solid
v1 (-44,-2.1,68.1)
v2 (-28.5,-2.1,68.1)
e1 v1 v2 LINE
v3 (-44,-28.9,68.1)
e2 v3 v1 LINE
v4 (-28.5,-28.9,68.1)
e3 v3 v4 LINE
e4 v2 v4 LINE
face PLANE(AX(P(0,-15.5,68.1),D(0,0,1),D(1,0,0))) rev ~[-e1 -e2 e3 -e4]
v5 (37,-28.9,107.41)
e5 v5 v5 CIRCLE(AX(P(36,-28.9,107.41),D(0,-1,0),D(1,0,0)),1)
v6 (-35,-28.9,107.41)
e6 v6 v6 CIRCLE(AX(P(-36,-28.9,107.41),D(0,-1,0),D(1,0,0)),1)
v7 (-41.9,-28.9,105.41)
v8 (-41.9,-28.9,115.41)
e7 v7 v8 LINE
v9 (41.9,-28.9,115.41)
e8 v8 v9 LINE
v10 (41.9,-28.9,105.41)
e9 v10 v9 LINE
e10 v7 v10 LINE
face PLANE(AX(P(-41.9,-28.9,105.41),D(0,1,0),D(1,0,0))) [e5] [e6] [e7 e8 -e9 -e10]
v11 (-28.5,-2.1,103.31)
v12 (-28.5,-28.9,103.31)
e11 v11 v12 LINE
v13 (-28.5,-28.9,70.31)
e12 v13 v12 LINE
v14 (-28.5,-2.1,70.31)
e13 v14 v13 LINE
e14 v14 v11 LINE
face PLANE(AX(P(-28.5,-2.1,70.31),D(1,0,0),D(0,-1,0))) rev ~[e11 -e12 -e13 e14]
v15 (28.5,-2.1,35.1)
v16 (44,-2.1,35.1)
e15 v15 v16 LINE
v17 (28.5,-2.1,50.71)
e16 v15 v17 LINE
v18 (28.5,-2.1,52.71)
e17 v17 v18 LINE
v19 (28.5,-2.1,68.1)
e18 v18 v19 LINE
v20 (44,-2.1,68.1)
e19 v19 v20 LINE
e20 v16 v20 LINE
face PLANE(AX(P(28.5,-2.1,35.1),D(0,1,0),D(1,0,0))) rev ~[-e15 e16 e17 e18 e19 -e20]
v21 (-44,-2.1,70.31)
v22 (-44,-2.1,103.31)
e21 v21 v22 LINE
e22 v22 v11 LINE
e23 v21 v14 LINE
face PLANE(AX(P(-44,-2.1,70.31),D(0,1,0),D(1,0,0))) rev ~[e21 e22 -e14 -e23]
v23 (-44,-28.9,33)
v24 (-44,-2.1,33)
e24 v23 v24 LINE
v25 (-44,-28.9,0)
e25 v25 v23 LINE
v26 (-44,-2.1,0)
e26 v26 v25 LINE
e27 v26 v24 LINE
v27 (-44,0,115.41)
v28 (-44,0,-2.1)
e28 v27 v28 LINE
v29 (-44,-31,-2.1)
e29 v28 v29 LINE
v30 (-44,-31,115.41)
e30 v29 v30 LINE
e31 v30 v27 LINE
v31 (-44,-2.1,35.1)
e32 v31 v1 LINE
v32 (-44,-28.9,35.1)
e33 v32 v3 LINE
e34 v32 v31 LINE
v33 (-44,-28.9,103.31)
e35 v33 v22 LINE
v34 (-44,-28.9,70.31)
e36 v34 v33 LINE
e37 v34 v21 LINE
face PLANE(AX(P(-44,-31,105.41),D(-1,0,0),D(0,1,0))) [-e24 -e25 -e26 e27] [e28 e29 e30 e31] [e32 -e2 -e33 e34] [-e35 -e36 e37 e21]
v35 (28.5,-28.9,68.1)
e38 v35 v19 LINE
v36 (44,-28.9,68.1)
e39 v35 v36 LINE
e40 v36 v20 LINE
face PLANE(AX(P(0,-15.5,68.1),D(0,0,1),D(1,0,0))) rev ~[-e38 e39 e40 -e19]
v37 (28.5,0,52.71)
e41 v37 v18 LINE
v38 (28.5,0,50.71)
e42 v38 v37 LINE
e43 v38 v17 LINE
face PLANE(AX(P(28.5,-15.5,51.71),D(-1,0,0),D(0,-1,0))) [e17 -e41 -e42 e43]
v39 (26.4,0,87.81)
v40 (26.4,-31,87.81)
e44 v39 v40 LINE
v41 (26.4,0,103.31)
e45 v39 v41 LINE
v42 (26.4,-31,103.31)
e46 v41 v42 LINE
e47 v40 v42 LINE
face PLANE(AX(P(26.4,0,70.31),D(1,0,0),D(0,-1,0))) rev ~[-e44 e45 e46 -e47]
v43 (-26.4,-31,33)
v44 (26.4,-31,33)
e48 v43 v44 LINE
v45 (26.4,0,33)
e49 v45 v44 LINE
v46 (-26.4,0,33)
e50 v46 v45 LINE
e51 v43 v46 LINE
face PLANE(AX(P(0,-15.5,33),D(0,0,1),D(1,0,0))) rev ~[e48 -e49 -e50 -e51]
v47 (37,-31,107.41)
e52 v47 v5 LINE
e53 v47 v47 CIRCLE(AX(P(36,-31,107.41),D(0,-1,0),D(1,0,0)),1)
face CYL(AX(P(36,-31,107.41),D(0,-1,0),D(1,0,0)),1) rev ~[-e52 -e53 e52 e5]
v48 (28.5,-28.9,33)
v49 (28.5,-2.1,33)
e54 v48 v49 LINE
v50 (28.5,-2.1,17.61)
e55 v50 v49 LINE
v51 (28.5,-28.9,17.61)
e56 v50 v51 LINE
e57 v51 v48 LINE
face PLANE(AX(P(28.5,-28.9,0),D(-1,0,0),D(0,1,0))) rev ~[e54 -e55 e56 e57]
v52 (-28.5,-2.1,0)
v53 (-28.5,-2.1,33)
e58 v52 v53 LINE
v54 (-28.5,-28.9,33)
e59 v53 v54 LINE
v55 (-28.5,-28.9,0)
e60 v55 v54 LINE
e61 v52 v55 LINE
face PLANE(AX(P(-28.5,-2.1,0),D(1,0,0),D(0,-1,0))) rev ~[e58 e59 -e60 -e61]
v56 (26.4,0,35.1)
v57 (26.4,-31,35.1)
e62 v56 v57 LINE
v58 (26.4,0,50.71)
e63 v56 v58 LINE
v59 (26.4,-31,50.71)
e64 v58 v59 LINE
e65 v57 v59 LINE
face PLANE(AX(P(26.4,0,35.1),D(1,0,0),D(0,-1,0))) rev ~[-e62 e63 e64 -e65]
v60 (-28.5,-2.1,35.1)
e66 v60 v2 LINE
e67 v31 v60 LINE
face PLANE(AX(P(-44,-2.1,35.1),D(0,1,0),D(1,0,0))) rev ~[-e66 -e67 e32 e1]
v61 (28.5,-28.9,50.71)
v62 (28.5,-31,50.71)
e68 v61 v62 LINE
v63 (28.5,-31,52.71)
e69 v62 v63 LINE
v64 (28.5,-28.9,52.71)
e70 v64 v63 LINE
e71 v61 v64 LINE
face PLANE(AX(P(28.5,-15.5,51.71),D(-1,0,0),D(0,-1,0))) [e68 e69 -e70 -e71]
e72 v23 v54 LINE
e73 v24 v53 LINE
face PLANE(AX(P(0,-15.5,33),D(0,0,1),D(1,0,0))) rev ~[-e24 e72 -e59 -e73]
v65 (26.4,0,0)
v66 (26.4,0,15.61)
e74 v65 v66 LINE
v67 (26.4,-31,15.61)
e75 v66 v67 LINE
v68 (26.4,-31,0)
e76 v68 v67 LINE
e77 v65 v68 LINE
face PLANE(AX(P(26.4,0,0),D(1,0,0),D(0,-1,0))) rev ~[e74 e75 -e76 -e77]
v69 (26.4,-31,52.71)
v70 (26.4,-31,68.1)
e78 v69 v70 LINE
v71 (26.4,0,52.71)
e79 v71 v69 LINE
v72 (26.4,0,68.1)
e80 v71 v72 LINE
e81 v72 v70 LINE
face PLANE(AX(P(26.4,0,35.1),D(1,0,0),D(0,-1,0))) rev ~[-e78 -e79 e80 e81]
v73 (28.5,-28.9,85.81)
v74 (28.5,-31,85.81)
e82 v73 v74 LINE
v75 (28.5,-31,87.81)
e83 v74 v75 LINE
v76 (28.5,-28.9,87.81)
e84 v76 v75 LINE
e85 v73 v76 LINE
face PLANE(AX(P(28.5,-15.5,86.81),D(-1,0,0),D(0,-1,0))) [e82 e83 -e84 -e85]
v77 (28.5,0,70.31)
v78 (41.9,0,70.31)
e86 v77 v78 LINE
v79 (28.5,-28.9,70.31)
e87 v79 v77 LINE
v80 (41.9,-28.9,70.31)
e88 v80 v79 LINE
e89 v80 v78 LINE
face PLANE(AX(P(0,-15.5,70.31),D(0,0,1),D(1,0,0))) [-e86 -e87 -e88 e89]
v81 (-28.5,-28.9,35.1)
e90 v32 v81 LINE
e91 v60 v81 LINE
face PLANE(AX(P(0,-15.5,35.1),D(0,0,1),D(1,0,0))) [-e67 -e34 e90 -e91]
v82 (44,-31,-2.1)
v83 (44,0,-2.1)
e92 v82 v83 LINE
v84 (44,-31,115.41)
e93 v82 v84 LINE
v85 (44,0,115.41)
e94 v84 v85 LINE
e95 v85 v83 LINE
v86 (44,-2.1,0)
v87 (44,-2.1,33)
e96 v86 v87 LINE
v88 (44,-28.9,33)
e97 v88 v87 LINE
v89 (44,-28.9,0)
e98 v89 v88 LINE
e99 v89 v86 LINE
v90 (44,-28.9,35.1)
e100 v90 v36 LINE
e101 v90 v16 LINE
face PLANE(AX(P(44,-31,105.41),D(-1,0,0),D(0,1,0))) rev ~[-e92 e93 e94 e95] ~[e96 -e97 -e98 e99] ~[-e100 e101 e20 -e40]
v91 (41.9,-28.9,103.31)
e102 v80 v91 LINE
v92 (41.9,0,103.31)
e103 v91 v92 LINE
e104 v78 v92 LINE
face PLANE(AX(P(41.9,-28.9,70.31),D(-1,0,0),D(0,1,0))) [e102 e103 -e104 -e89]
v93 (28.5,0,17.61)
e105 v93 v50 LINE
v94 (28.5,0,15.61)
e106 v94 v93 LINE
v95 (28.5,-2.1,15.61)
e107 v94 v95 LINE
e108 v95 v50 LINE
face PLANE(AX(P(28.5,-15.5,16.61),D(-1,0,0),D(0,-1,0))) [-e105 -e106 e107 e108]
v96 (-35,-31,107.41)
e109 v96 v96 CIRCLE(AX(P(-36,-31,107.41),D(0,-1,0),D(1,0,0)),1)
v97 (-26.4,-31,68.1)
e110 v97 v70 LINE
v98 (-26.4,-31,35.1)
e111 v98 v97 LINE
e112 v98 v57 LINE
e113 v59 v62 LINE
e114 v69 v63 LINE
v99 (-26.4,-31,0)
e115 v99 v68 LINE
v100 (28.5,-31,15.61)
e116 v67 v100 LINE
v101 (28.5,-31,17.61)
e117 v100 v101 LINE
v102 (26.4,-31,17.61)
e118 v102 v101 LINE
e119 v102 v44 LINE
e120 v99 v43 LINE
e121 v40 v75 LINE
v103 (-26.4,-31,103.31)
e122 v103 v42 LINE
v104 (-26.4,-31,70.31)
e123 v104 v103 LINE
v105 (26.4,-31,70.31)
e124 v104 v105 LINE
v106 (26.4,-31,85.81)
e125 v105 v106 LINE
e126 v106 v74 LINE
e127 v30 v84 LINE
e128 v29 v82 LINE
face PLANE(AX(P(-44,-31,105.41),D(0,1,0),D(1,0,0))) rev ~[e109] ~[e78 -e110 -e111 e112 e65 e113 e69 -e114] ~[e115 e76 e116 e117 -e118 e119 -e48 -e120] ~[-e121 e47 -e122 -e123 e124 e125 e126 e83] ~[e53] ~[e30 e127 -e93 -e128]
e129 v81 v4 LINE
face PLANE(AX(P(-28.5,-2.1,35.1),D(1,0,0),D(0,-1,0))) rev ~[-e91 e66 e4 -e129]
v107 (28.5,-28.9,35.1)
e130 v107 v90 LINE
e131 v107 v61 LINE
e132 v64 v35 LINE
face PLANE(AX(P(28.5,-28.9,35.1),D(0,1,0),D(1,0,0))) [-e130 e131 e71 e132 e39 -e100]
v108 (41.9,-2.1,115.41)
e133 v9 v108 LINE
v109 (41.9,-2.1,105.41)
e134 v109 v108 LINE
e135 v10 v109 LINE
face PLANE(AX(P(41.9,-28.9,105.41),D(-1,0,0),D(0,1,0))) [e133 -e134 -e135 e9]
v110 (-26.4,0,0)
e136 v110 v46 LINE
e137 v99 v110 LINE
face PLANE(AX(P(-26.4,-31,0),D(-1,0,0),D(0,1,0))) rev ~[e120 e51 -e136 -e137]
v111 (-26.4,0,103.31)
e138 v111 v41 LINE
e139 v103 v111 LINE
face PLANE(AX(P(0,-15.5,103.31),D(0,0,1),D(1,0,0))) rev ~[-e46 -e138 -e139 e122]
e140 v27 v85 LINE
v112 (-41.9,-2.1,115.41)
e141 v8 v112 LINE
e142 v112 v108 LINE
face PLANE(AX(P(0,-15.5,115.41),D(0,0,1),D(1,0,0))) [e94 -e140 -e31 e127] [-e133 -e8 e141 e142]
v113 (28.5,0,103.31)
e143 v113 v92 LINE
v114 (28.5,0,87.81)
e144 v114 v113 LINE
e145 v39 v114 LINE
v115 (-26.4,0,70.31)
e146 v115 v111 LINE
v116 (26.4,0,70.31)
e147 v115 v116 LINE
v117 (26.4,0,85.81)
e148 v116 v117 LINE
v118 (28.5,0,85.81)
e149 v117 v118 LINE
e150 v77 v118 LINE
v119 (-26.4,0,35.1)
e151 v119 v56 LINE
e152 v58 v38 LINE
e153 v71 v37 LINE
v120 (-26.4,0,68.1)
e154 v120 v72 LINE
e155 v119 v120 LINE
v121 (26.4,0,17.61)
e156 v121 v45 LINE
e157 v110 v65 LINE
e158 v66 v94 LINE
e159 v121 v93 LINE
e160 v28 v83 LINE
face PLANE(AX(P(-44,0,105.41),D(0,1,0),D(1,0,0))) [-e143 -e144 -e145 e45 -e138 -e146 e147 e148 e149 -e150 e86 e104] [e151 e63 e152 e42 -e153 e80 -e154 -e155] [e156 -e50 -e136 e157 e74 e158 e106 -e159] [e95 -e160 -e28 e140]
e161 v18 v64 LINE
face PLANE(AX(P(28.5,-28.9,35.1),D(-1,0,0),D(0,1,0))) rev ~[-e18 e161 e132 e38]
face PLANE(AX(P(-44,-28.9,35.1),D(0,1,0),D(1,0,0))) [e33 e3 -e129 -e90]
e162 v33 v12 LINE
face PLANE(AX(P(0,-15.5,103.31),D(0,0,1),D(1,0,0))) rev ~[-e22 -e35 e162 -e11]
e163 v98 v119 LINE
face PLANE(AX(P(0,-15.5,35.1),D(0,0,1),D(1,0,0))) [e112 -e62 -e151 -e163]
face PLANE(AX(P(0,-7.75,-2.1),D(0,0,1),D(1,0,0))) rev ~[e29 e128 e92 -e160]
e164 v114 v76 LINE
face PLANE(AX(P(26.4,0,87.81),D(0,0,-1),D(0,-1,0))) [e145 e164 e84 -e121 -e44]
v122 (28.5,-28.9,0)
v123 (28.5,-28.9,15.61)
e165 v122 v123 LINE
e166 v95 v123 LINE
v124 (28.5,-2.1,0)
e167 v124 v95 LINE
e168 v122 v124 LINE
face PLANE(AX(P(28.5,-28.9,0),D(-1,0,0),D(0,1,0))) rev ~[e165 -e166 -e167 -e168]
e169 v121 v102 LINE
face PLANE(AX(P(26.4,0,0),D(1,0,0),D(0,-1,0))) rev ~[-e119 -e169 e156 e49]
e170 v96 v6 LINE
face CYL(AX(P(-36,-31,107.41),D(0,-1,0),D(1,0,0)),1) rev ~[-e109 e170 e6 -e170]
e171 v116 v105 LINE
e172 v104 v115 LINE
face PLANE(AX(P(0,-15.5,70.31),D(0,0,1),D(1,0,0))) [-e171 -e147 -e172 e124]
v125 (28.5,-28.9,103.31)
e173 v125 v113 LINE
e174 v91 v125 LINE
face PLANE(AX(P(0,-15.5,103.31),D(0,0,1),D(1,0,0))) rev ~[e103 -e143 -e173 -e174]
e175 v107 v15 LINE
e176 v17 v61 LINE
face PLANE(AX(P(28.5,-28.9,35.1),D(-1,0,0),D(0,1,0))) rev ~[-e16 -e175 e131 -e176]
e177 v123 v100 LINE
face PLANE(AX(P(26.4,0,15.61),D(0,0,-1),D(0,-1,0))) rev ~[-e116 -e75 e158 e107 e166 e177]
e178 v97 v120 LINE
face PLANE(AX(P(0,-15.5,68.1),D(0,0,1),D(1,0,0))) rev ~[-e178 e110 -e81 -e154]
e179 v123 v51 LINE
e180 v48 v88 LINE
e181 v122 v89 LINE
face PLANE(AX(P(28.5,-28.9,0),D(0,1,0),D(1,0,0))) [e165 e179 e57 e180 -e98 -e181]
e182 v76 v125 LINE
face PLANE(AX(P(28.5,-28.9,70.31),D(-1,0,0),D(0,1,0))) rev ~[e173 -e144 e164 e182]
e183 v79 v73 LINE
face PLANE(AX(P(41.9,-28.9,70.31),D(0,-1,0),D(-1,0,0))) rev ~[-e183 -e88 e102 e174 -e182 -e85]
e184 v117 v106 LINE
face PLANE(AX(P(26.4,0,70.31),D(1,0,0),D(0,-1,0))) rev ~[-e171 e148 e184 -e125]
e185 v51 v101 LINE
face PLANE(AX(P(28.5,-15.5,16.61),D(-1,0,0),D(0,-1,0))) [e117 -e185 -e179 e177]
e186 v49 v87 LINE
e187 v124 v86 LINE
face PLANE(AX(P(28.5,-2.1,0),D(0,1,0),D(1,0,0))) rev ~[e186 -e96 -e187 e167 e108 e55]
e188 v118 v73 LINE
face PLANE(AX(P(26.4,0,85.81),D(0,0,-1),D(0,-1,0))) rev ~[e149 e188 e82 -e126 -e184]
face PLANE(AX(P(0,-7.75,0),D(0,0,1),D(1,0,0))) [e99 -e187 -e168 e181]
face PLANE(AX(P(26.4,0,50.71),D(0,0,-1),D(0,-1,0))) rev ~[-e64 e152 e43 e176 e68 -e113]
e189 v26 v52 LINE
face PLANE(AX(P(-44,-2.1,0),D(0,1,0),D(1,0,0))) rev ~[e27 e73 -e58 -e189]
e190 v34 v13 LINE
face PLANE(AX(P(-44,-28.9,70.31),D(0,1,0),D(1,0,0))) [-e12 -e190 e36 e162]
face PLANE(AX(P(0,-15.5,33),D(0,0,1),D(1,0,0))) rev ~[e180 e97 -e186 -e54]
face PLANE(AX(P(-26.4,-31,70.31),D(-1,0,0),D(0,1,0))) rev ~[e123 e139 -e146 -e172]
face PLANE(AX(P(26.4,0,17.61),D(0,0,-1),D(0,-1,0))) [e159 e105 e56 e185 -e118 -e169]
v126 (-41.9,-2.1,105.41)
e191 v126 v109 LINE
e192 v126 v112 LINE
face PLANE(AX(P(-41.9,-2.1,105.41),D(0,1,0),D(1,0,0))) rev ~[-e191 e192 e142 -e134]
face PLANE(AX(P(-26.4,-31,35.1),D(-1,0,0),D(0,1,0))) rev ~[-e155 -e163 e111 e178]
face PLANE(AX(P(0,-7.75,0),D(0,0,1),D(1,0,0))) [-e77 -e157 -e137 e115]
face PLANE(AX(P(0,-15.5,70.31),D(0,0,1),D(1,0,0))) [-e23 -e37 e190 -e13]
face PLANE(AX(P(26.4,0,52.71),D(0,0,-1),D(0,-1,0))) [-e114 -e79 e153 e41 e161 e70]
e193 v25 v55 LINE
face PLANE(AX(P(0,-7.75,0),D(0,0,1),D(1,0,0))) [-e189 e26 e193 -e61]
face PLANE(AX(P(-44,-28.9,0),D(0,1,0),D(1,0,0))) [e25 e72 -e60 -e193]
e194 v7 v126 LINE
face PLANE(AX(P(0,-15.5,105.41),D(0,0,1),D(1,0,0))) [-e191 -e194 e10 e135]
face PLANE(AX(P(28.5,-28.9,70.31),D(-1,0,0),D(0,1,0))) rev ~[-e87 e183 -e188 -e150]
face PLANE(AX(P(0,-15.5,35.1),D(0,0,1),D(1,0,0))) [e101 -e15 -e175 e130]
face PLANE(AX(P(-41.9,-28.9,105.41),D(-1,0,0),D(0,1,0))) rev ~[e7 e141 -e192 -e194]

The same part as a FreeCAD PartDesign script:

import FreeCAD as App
import Part
import Sketcher

V = App.Vector
Q = App.Units.Quantity

doc = App.newDocument("Part")
params = doc.addObject("Spreadsheet::Sheet", "Params")
for row, (alias, value) in enumerate([
    ("sketch1_width", "88 mm"),
    ("sketch1_height", "31 mm"),
    ("pad1_length", "2.1 mm"),
    ("sketch2_height", "31 mm"),
    ("sketch2_width", "17.6 mm"),
    ("sketch2_width2", "15.5 mm"),
    ("sketch2_height2", "2.1 mm"),
    ("pad2_length", "33 mm"),
    ("sketch3_width", "88 mm"),
    ("sketch3_height", "31 mm"),
    ("pad3_length", "2.1 mm"),
    ("sketch4_height", "31 mm"),
    ("sketch4_width", "17.6 mm"),
    ("sketch4_width2", "15.5 mm"),
    ("sketch4_height2", "2.1 mm"),
    ("pad4_length", "33 mm"),
    ("sketch5_width", "88 mm"),
    ("sketch5_height", "31 mm"),
    ("pad5_length", "2.21 mm"),
    ("sketch6_height", "31 mm"),
    ("sketch6_width", "15.5 mm"),
    ("sketch6_width2", "17.6 mm"),
    ("pad6_length", "33 mm"),
    ("sketch7_width", "88 mm"),
    ("sketch7_height", "31 mm"),
    ("pad7_length", "2.1 mm"),
    ("sketch8_width", "88 mm"),
    ("sketch8_height", "31 mm"),
    ("sketch8_width2", "83.8 mm"),
    ("sketch8_height2", "26.8 mm"),
    ("pad8_length", "10 mm"),
    ("sketch9_diameter", "2 mm"),
    ("pocket1_length", "2.1 mm"),
    ("sketch10_width", "31 mm"),
    ("sketch10_height", "2 mm"),
    ("pocket2_length", "2.1 mm"),
], start=1):
    params.set(f"A{row}", alias)
    params.set(f"B{row}", "=" + value)
    params.setAlias(f"B{row}", alias)

body = doc.addObject("PartDesign::Body", "Body")

sketch1 = body.newObject("Sketcher::SketchObject", "Sketch")
sketch1.AttachmentSupport = (doc.getObject("XY_Plane"), [""])
sketch1.MapMode = "FlatFace"
sketch1.addGeometry([
    Part.LineSegment(V(-44, 0, 0), V(-44, -31, 0)),
    Part.LineSegment(V(-44, -31, 0), V(44, -31, 0)),
    Part.LineSegment(V(44, -31, 0), V(44, 0, 0)),
    Part.LineSegment(V(44, 0, 0), V(-44, 0, 0)),
], False)
sketch1.addConstraint([
    Sketcher.Constraint("Coincident", 0, 2, 1, 1),
    Sketcher.Constraint("Coincident", 1, 2, 2, 1),
    Sketcher.Constraint("Coincident", 2, 2, 3, 1),
    Sketcher.Constraint("Coincident", 3, 2, 0, 1),
    Sketcher.Constraint("Vertical", 0),
    Sketcher.Constraint("Horizontal", 1),
    Sketcher.Constraint("Vertical", 2),
    Sketcher.Constraint("Horizontal", 3),
    Sketcher.Constraint("Symmetric", 2, 2, 3, 2, -1, 1),
    Sketcher.Constraint("DistanceX", 1, 1, 1, 2, Q("88 mm")),
    Sketcher.Constraint("DistanceY", 0, 2, 0, 1, Q("31 mm")),
])
sketch1.setExpression("Constraints[9]", "Params.sketch1_width")
sketch1.setExpression("Constraints[10]", "Params.sketch1_height")
pad1 = body.newObject("PartDesign::Pad", "Pad")
pad1.Profile = sketch1
pad1.setExpression("Length", "Params.pad1_length")
pad1.Reversed = True

sketch2 = body.newObject("Sketcher::SketchObject", "Sketch001")
sketch2.AttachmentSupport = (doc.getObject("XY_Plane"), [""])
sketch2.MapMode = "FlatFace"
sketch2.addGeometry([
    Part.LineSegment(V(-26.4, 0, 0), V(-44, 0, 0)),
    Part.LineSegment(V(-44, 0, 0), V(-44, -2.1, 0)),
    Part.LineSegment(V(-44, -2.1, 0), V(-28.5, -2.1, 0)),
    Part.LineSegment(V(-28.5, -2.1, 0), V(-28.5, -28.9, 0)),
    Part.LineSegment(V(-28.5, -28.9, 0), V(-44, -28.9, 0)),
    Part.LineSegment(V(-44, -28.9, 0), V(-44, -31, 0)),
    Part.LineSegment(V(-44, -31, 0), V(-26.4, -31, 0)),
    Part.LineSegment(V(-26.4, -31, 0), V(-26.4, 0, 0)),
    Part.LineSegment(V(26.4, 0, 0), V(26.4, -31, 0)),
    Part.LineSegment(V(26.4, -31, 0), V(44, -31, 0)),
    Part.LineSegment(V(44, -31, 0), V(44, -28.9, 0)),
    Part.LineSegment(V(44, -28.9, 0), V(28.5, -28.9, 0)),
    Part.LineSegment(V(28.5, -28.9, 0), V(28.5, -2.1, 0)),
    Part.LineSegment(V(28.5, -2.1, 0), V(44, -2.1, 0)),
    Part.LineSegment(V(44, -2.1, 0), V(44, 0, 0)),
    Part.LineSegment(V(44, 0, 0), V(26.4, 0, 0)),
], False)
sketch2.addConstraint([
    Sketcher.Constraint("Coincident", 0, 2, 1, 1),
    Sketcher.Constraint("Coincident", 1, 2, 2, 1),
    Sketcher.Constraint("Coincident", 2, 2, 3, 1),
    Sketcher.Constraint("Coincident", 3, 2, 4, 1),
    Sketcher.Constraint("Coincident", 4, 2, 5, 1),
    Sketcher.Constraint("Coincident", 5, 2, 6, 1),
    Sketcher.Constraint("Coincident", 6, 2, 7, 1),
    Sketcher.Constraint("Coincident", 7, 2, 0, 1),
    Sketcher.Constraint("Coincident", 8, 2, 9, 1),
    Sketcher.Constraint("Coincident", 9, 2, 10, 1),
    Sketcher.Constraint("Coincident", 10, 2, 11, 1),
    Sketcher.Constraint("Coincident", 11, 2, 12, 1),
    Sketcher.Constraint("Coincident", 12, 2, 13, 1),
    Sketcher.Constraint("Coincident", 13, 2, 14, 1),
    Sketcher.Constraint("Coincident", 14, 2, 15, 1),
    Sketcher.Constraint("Coincident", 15, 2, 8, 1),
    Sketcher.Constraint("Horizontal", 0),
    Sketcher.Constraint("Vertical", 1),
    Sketcher.Constraint("Horizontal", 2),
    Sketcher.Constraint("Vertical", 3),
    Sketcher.Constraint("Horizontal", 4),
    Sketcher.Constraint("Vertical", 5),
    Sketcher.Constraint("Horizontal", 6),
    Sketcher.Constraint("Vertical", 7),
    Sketcher.Constraint("Vertical", 8),
    Sketcher.Constraint("Horizontal", 9),
    Sketcher.Constraint("Vertical", 10),
    Sketcher.Constraint("Horizontal", 11),
    Sketcher.Constraint("Vertical", 12),
    Sketcher.Constraint("Horizontal", 13),
    Sketcher.Constraint("Vertical", 14),
    Sketcher.Constraint("Horizontal", 15),
    Sketcher.Constraint("Symmetric", 0, 2, 14, 2, -1, 1),
    Sketcher.Constraint("Symmetric", 6, 2, 8, 2, -2),
    Sketcher.Constraint("Symmetric", 4, 2, 10, 2, -2),
    Sketcher.Constraint("Symmetric", 2, 2, 12, 2, -2),
    Sketcher.Constraint("PointOnObject", 0, 2, -1),
    Sketcher.Constraint("Vertical", 1, 2, 4, 2),
    Sketcher.Constraint("Equal", 1, 5),
    Sketcher.Constraint("DistanceY", 7, 1, 7, 2, Q("31 mm")),
    Sketcher.Constraint("DistanceX", 0, 2, 0, 1, Q("17.6 mm")),
    Sketcher.Constraint("DistanceX", 2, 1, 2, 2, Q("15.5 mm")),
    Sketcher.Constraint("DistanceY", 1, 2, 1, 1, Q("2.1 mm")),
    Sketcher.Constraint("DistanceX", 0, 2, -1, 1, Q("44 mm")),
])
sketch2.setExpression("Constraints[39]", "Params.sketch2_height")
sketch2.setExpression("Constraints[40]", "Params.sketch2_width")
sketch2.setExpression("Constraints[41]", "Params.sketch2_width2")
sketch2.setExpression("Constraints[42]", "Params.sketch2_height2")
pad2 = body.newObject("PartDesign::Pad", "Pad001")
pad2.Profile = sketch2
pad2.setExpression("Length", "Params.pad2_length")

sketch3 = body.newObject("Sketcher::SketchObject", "Sketch002")
sketch3.AttachmentSupport = (doc.getObject("XY_Plane"), [""])
sketch3.MapMode = "FlatFace"
sketch3.AttachmentOffset = App.Placement(V(0, 0, 33), App.Rotation())
sketch3.addGeometry([
    Part.LineSegment(V(-44, 0, 0), V(-44, -31, 0)),
    Part.LineSegment(V(-44, -31, 0), V(44, -31, 0)),
    Part.LineSegment(V(44, -31, 0), V(44, 0, 0)),
    Part.LineSegment(V(44, 0, 0), V(-44, 0, 0)),
], False)
sketch3.addConstraint([
    Sketcher.Constraint("Coincident", 0, 2, 1, 1),
    Sketcher.Constraint("Coincident", 1, 2, 2, 1),
    Sketcher.Constraint("Coincident", 2, 2, 3, 1),
    Sketcher.Constraint("Coincident", 3, 2, 0, 1),
    Sketcher.Constraint("Vertical", 0),
    Sketcher.Constraint("Horizontal", 1),
    Sketcher.Constraint("Vertical", 2),
    Sketcher.Constraint("Horizontal", 3),
    Sketcher.Constraint("Symmetric", 2, 2, 3, 2, -1, 1),
    Sketcher.Constraint("DistanceX", 1, 1, 1, 2, Q("88 mm")),
    Sketcher.Constraint("DistanceY", 0, 2, 0, 1, Q("31 mm")),
])
sketch3.setExpression("Constraints[9]", "Params.sketch3_width")
sketch3.setExpression("Constraints[10]", "Params.sketch3_height")
pad3 = body.newObject("PartDesign::Pad", "Pad002")
pad3.Profile = sketch3
pad3.setExpression("Length", "Params.pad3_length")

sketch4 = body.newObject("Sketcher::SketchObject", "Sketch003")
sketch4.AttachmentSupport = (doc.getObject("XY_Plane"), [""])
sketch4.MapMode = "FlatFace"
sketch4.AttachmentOffset = App.Placement(V(0, 0, 35.1), App.Rotation())
sketch4.addGeometry([
    Part.LineSegment(V(-26.4, 0, 0), V(-44, 0, 0)),
    Part.LineSegment(V(-44, 0, 0), V(-44, -2.1, 0)),
    Part.LineSegment(V(-44, -2.1, 0), V(-28.5, -2.1, 0)),
    Part.LineSegment(V(-28.5, -2.1, 0), V(-28.5, -28.9, 0)),
    Part.LineSegment(V(-28.5, -28.9, 0), V(-44, -28.9, 0)),
    Part.LineSegment(V(-44, -28.9, 0), V(-44, -31, 0)),
    Part.LineSegment(V(-44, -31, 0), V(-26.4, -31, 0)),
    Part.LineSegment(V(-26.4, -31, 0), V(-26.4, 0, 0)),
    Part.LineSegment(V(26.4, 0, 0), V(26.4, -31, 0)),
    Part.LineSegment(V(26.4, -31, 0), V(44, -31, 0)),
    Part.LineSegment(V(44, -31, 0), V(44, -28.9, 0)),
    Part.LineSegment(V(44, -28.9, 0), V(28.5, -28.9, 0)),
    Part.LineSegment(V(28.5, -28.9, 0), V(28.5, -2.1, 0)),
    Part.LineSegment(V(28.5, -2.1, 0), V(44, -2.1, 0)),
    Part.LineSegment(V(44, -2.1, 0), V(44, 0, 0)),
    Part.LineSegment(V(44, 0, 0), V(26.4, 0, 0)),
], False)
sketch4.addConstraint([
    Sketcher.Constraint("Coincident", 0, 2, 1, 1),
    Sketcher.Constraint("Coincident", 1, 2, 2, 1),
    Sketcher.Constraint("Coincident", 2, 2, 3, 1),
    Sketcher.Constraint("Coincident", 3, 2, 4, 1),
    Sketcher.Constraint("Coincident", 4, 2, 5, 1),
    Sketcher.Constraint("Coincident", 5, 2, 6, 1),
    Sketcher.Constraint("Coincident", 6, 2, 7, 1),
    Sketcher.Constraint("Coincident", 7, 2, 0, 1),
    Sketcher.Constraint("Coincident", 8, 2, 9, 1),
    Sketcher.Constraint("Coincident", 9, 2, 10, 1),
    Sketcher.Constraint("Coincident", 10, 2, 11, 1),
    Sketcher.Constraint("Coincident", 11, 2, 12, 1),
    Sketcher.Constraint("Coincident", 12, 2, 13, 1),
    Sketcher.Constraint("Coincident", 13, 2, 14, 1),
    Sketcher.Constraint("Coincident", 14, 2, 15, 1),
    Sketcher.Constraint("Coincident", 15, 2, 8, 1),
    Sketcher.Constraint("Horizontal", 0),
    Sketcher.Constraint("Vertical", 1),
    Sketcher.Constraint("Horizontal", 2),
    Sketcher.Constraint("Vertical", 3),
    Sketcher.Constraint("Horizontal", 4),
    Sketcher.Constraint("Vertical", 5),
    Sketcher.Constraint("Horizontal", 6),
    Sketcher.Constraint("Vertical", 7),
    Sketcher.Constraint("Vertical", 8),
    Sketcher.Constraint("Horizontal", 9),
    Sketcher.Constraint("Vertical", 10),
    Sketcher.Constraint("Horizontal", 11),
    Sketcher.Constraint("Vertical", 12),
    Sketcher.Constraint("Horizontal", 13),
    Sketcher.Constraint("Vertical", 14),
    Sketcher.Constraint("Horizontal", 15),
    Sketcher.Constraint("Symmetric", 0, 2, 14, 2, -1, 1),
    Sketcher.Constraint("Symmetric", 6, 2, 8, 2, -2),
    Sketcher.Constraint("Symmetric", 4, 2, 10, 2, -2),
    Sketcher.Constraint("Symmetric", 2, 2, 12, 2, -2),
    Sketcher.Constraint("PointOnObject", 0, 2, -1),
    Sketcher.Constraint("Vertical", 1, 2, 4, 2),
    Sketcher.Constraint("Equal", 1, 5),
    Sketcher.Constraint("DistanceY", 7, 1, 7, 2, Q("31 mm")),
    Sketcher.Constraint("DistanceX", 0, 2, 0, 1, Q("17.6 mm")),
    Sketcher.Constraint("DistanceX", 2, 1, 2, 2, Q("15.5 mm")),
    Sketcher.Constraint("DistanceY", 1, 2, 1, 1, Q("2.1 mm")),
    Sketcher.Constraint("DistanceX", 0, 2, -1, 1, Q("44 mm")),
])
sketch4.setExpression("Constraints[39]", "Params.sketch4_height")
sketch4.setExpression("Constraints[40]", "Params.sketch4_width")
sketch4.setExpression("Constraints[41]", "Params.sketch4_width2")
sketch4.setExpression("Constraints[42]", "Params.sketch4_height2")
pad4 = body.newObject("PartDesign::Pad", "Pad003")
pad4.Profile = sketch4
pad4.setExpression("Length", "Params.pad4_length")

sketch5 = body.newObject("Sketcher::SketchObject", "Sketch004")
sketch5.AttachmentSupport = (doc.getObject("XY_Plane"), [""])
sketch5.MapMode = "FlatFace"
sketch5.AttachmentOffset = App.Placement(V(0, 0, 68.1), App.Rotation())
sketch5.addGeometry([
    Part.LineSegment(V(-44, 0, 0), V(-44, -31, 0)),
    Part.LineSegment(V(-44, -31, 0), V(44, -31, 0)),
    Part.LineSegment(V(44, -31, 0), V(44, 0, 0)),
    Part.LineSegment(V(44, 0, 0), V(-44, 0, 0)),
], False)
sketch5.addConstraint([
    Sketcher.Constraint("Coincident", 0, 2, 1, 1),
    Sketcher.Constraint("Coincident", 1, 2, 2, 1),
    Sketcher.Constraint("Coincident", 2, 2, 3, 1),
    Sketcher.Constraint("Coincident", 3, 2, 0, 1),
    Sketcher.Constraint("Vertical", 0),
    Sketcher.Constraint("Horizontal", 1),
    Sketcher.Constraint("Vertical", 2),
    Sketcher.Constraint("Horizontal", 3),
    Sketcher.Constraint("Symmetric", 2, 2, 3, 2, -1, 1),
    Sketcher.Constraint("DistanceX", 1, 1, 1, 2, Q("88 mm")),
    Sketcher.Constraint("DistanceY", 0, 2, 0, 1, Q("31 mm")),
])
sketch5.setExpression("Constraints[9]", "Params.sketch5_width")
sketch5.setExpression("Constraints[10]", "Params.sketch5_height")
pad5 = body.newObject("PartDesign::Pad", "Pad004")
pad5.Profile = sketch5
pad5.setExpression("Length", "Params.pad5_length")

sketch6 = body.newObject("Sketcher::SketchObject", "Sketch005")
sketch6.AttachmentSupport = (doc.getObject("XY_Plane"), [""])
sketch6.MapMode = "FlatFace"
sketch6.AttachmentOffset = App.Placement(V(0, 0, 70.31), App.Rotation())
sketch6.addGeometry([
    Part.LineSegment(V(-44, 0, 0), V(-44, -2.1, 0)),
    Part.LineSegment(V(-44, -2.1, 0), V(-28.5, -2.1, 0)),
    Part.LineSegment(V(-28.5, -2.1, 0), V(-28.5, -28.9, 0)),
    Part.LineSegment(V(-28.5, -28.9, 0), V(-44, -28.9, 0)),
    Part.LineSegment(V(-44, -28.9, 0), V(-44, -31, 0)),
    Part.LineSegment(V(-44, -31, 0), V(-26.4, -31, 0)),
    Part.LineSegment(V(-26.4, -31, 0), V(-26.4, 0, 0)),
    Part.LineSegment(V(-26.4, 0, 0), V(-44, 0, 0)),
    Part.LineSegment(V(44, -31, 0), V(44, 0, 0)),
    Part.LineSegment(V(44, 0, 0), V(41.9, 0, 0)),
    Part.LineSegment(V(41.9, 0, 0), V(41.9, -28.9, 0)),
    Part.LineSegment(V(41.9, -28.9, 0), V(28.5, -28.9, 0)),
    Part.LineSegment(V(28.5, -28.9, 0), V(28.5, 0, 0)),
    Part.LineSegment(V(28.5, 0, 0), V(26.4, 0, 0)),
    Part.LineSegment(V(26.4, 0, 0), V(26.4, -31, 0)),
    Part.LineSegment(V(26.4, -31, 0), V(44, -31, 0)),
], False)
sketch6.addConstraint([
    Sketcher.Constraint("Coincident", 0, 2, 1, 1),
    Sketcher.Constraint("Coincident", 1, 2, 2, 1),
    Sketcher.Constraint("Coincident", 2, 2, 3, 1),
    Sketcher.Constraint("Coincident", 3, 2, 4, 1),
    Sketcher.Constraint("Coincident", 4, 2, 5, 1),
    Sketcher.Constraint("Coincident", 5, 2, 6, 1),
    Sketcher.Constraint("Coincident", 6, 2, 7, 1),
    Sketcher.Constraint("Coincident", 7, 2, 0, 1),
    Sketcher.Constraint("Coincident", 8, 2, 9, 1),
    Sketcher.Constraint("Coincident", 9, 2, 10, 1),
    Sketcher.Constraint("Coincident", 10, 2, 11, 1),
    Sketcher.Constraint("Coincident", 11, 2, 12, 1),
    Sketcher.Constraint("Coincident", 12, 2, 13, 1),
    Sketcher.Constraint("Coincident", 13, 2, 14, 1),
    Sketcher.Constraint("Coincident", 14, 2, 15, 1),
    Sketcher.Constraint("Coincident", 15, 2, 8, 1),
    Sketcher.Constraint("Vertical", 0),
    Sketcher.Constraint("Horizontal", 1),
    Sketcher.Constraint("Vertical", 2),
    Sketcher.Constraint("Horizontal", 3),
    Sketcher.Constraint("Vertical", 4),
    Sketcher.Constraint("Horizontal", 5),
    Sketcher.Constraint("Vertical", 6),
    Sketcher.Constraint("Horizontal", 7),
    Sketcher.Constraint("Vertical", 8),
    Sketcher.Constraint("Horizontal", 9),
    Sketcher.Constraint("Vertical", 10),
    Sketcher.Constraint("Horizontal", 11),
    Sketcher.Constraint("Vertical", 12),
    Sketcher.Constraint("Horizontal", 13),
    Sketcher.Constraint("Vertical", 14),
    Sketcher.Constraint("Horizontal", 15),
    Sketcher.Constraint("Symmetric", 7, 2, 8, 2, -1, 1),
    Sketcher.Constraint("Symmetric", 6, 2, 13, 2, -1, 1),
    Sketcher.Constraint("Symmetric", 2, 2, 11, 2, -2),
    Sketcher.Constraint("Symmetric", 4, 2, 15, 2, -2),
    Sketcher.Constraint("PointOnObject", 6, 2, -1),
    Sketcher.Constraint("Equal", 9, 13),
    Sketcher.Constraint("Equal", 13, 0),
    Sketcher.Constraint("Equal", 0, 4),
    Sketcher.Constraint("DistanceY", 6, 1, 6, 2, Q("31 mm")),
    Sketcher.Constraint("DistanceX", 1, 1, 1, 2, Q("15.5 mm")),
    Sketcher.Constraint("DistanceX", 5, 1, 5, 2, Q("17.6 mm")),
    Sketcher.Constraint("DistanceX", 0, 2, -1, 1, Q("44 mm")),
])
sketch6.setExpression("Constraints[40]", "Params.sketch6_height")
sketch6.setExpression("Constraints[41]", "Params.sketch6_width")
sketch6.setExpression("Constraints[42]", "Params.sketch6_width2")
pad6 = body.newObject("PartDesign::Pad", "Pad005")
pad6.Profile = sketch6
pad6.setExpression("Length", "Params.pad6_length")

sketch7 = body.newObject("Sketcher::SketchObject", "Sketch006")
sketch7.AttachmentSupport = (doc.getObject("XY_Plane"), [""])
sketch7.MapMode = "FlatFace"
sketch7.AttachmentOffset = App.Placement(V(0, 0, 103.31), App.Rotation())
sketch7.addGeometry([
    Part.LineSegment(V(-44, 0, 0), V(-44, -31, 0)),
    Part.LineSegment(V(-44, -31, 0), V(44, -31, 0)),
    Part.LineSegment(V(44, -31, 0), V(44, 0, 0)),
    Part.LineSegment(V(44, 0, 0), V(-44, 0, 0)),
], False)
sketch7.addConstraint([
    Sketcher.Constraint("Coincident", 0, 2, 1, 1),
    Sketcher.Constraint("Coincident", 1, 2, 2, 1),
    Sketcher.Constraint("Coincident", 2, 2, 3, 1),
    Sketcher.Constraint("Coincident", 3, 2, 0, 1),
    Sketcher.Constraint("Vertical", 0),
    Sketcher.Constraint("Horizontal", 1),
    Sketcher.Constraint("Vertical", 2),
    Sketcher.Constraint("Horizontal", 3),
    Sketcher.Constraint("Symmetric", 2, 2, 3, 2, -1, 1),
    Sketcher.Constraint("DistanceX", 1, 1, 1, 2, Q("88 mm")),
    Sketcher.Constraint("DistanceY", 0, 2, 0, 1, Q("31 mm")),
])
sketch7.setExpression("Constraints[9]", "Params.sketch7_width")
sketch7.setExpression("Constraints[10]", "Params.sketch7_height")
pad7 = body.newObject("PartDesign::Pad", "Pad006")
pad7.Profile = sketch7
pad7.setExpression("Length", "Params.pad7_length")

sketch8 = body.newObject("Sketcher::SketchObject", "Sketch007")
sketch8.AttachmentSupport = (doc.getObject("XY_Plane"), [""])
sketch8.MapMode = "FlatFace"
sketch8.AttachmentOffset = App.Placement(V(0, 0, 105.41), App.Rotation())
sketch8.addGeometry([
    Part.LineSegment(V(-44, 0, 0), V(-44, -31, 0)),
    Part.LineSegment(V(-44, -31, 0), V(44, -31, 0)),
    Part.LineSegment(V(44, -31, 0), V(44, 0, 0)),
    Part.LineSegment(V(44, 0, 0), V(-44, 0, 0)),
    Part.LineSegment(V(41.9, -28.9, 0), V(-41.9, -28.9, 0)),
    Part.LineSegment(V(-41.9, -28.9, 0), V(-41.9, -2.1, 0)),
    Part.LineSegment(V(-41.9, -2.1, 0), V(41.9, -2.1, 0)),
    Part.LineSegment(V(41.9, -2.1, 0), V(41.9, -28.9, 0)),
], False)
sketch8.addConstraint([
    Sketcher.Constraint("Coincident", 0, 2, 1, 1),
    Sketcher.Constraint("Coincident", 1, 2, 2, 1),
    Sketcher.Constraint("Coincident", 2, 2, 3, 1),
    Sketcher.Constraint("Coincident", 3, 2, 0, 1),
    Sketcher.Constraint("Coincident", 4, 2, 5, 1),
    Sketcher.Constraint("Coincident", 5, 2, 6, 1),
    Sketcher.Constraint("Coincident", 6, 2, 7, 1),
    Sketcher.Constraint("Coincident", 7, 2, 4, 1),
    Sketcher.Constraint("Vertical", 0),
    Sketcher.Constraint("Horizontal", 1),
    Sketcher.Constraint("Vertical", 2),
    Sketcher.Constraint("Horizontal", 3),
    Sketcher.Constraint("Horizontal", 4),
    Sketcher.Constraint("Vertical", 5),
    Sketcher.Constraint("Horizontal", 6),
    Sketcher.Constraint("Vertical", 7),
    Sketcher.Constraint("Symmetric", 2, 2, 3, 2, -1, 1),
    Sketcher.Constraint("DistanceX", 1, 1, 1, 2, Q("88 mm")),
    Sketcher.Constraint("DistanceY", 0, 2, 0, 1, Q("31 mm")),
    Sketcher.Constraint("DistanceX", 4, 2, 4, 1, Q("83.8 mm")),
    Sketcher.Constraint("DistanceY", 5, 1, 5, 2, Q("26.8 mm")),
    Sketcher.Constraint("DistanceX", 4, 2, -1, 1, Q("41.9 mm")),
    Sketcher.Constraint("DistanceY", 4, 2, -1, 1, Q("28.9 mm")),
])
sketch8.setExpression("Constraints[17]", "Params.sketch8_width")
sketch8.setExpression("Constraints[18]", "Params.sketch8_height")
sketch8.setExpression("Constraints[19]", "Params.sketch8_width2")
sketch8.setExpression("Constraints[20]", "Params.sketch8_height2")
pad8 = body.newObject("PartDesign::Pad", "Pad007")
pad8.Profile = sketch8
pad8.setExpression("Length", "Params.pad8_length")

sketch9 = body.newObject("Sketcher::SketchObject", "Sketch008")
sketch9.AttachmentSupport = (doc.getObject("XZ_Plane"), [""])
sketch9.MapMode = "FlatFace"
sketch9.AttachmentOffset = App.Placement(V(0, 0, 31), App.Rotation())
sketch9.addGeometry([
    Part.Circle(V(-36, 107.41, 0), V(0, 0, 1), 1),
    Part.Circle(V(36, 107.41, 0), V(0, 0, 1), 1),
], False)
sketch9.addConstraint([
    Sketcher.Constraint("Equal", 0, 1),
    Sketcher.Constraint("Symmetric", 0, 3, 1, 3, -2),
    Sketcher.Constraint("Diameter", 0, Q("2 mm")),
    Sketcher.Constraint("DistanceX", 0, 3, -1, 1, Q("36 mm")),
    Sketcher.Constraint("DistanceY", -1, 1, 0, 3, Q("107.41 mm")),
])
sketch9.setExpression("Constraints[2]", "Params.sketch9_diameter")
pocket1 = body.newObject("PartDesign::Pocket", "Pocket")
pocket1.Profile = sketch9
pocket1.setExpression("Length", "Params.pocket1_length")

sketch10 = body.newObject("Sketcher::SketchObject", "Sketch009")
sketch10.AttachmentSupport = (doc.getObject("YZ_Plane"), [""])
sketch10.MapMode = "FlatFace"
sketch10.AttachmentOffset = App.Placement(V(0, 0, 26.4), App.Rotation())
sketch10.addGeometry([
    Part.LineSegment(V(0, 87.81, 0), V(0, 85.81, 0)),
    Part.LineSegment(V(0, 85.81, 0), V(-31, 85.81, 0)),
    Part.LineSegment(V(-31, 85.81, 0), V(-31, 87.81, 0)),
    Part.LineSegment(V(-31, 87.81, 0), V(0, 87.81, 0)),
    Part.LineSegment(V(0, 52.71, 0), V(0, 50.71, 0)),
    Part.LineSegment(V(0, 50.71, 0), V(-31, 50.71, 0)),
    Part.LineSegment(V(-31, 50.71, 0), V(-31, 52.71, 0)),
    Part.LineSegment(V(-31, 52.71, 0), V(0, 52.71, 0)),
    Part.LineSegment(V(0, 17.61, 0), V(0, 15.61, 0)),
    Part.LineSegment(V(0, 15.61, 0), V(-31, 15.61, 0)),
    Part.LineSegment(V(-31, 15.61, 0), V(-31, 17.61, 0)),
    Part.LineSegment(V(-31, 17.61, 0), V(0, 17.61, 0)),
], False)
sketch10.addConstraint([
    Sketcher.Constraint("Coincident", 0, 2, 1, 1),
    Sketcher.Constraint("Coincident", 1, 2, 2, 1),
    Sketcher.Constraint("Coincident", 2, 2, 3, 1),
    Sketcher.Constraint("Coincident", 3, 2, 0, 1),
    Sketcher.Constraint("Coincident", 4, 2, 5, 1),
    Sketcher.Constraint("Coincident", 5, 2, 6, 1),
    Sketcher.Constraint("Coincident", 6, 2, 7, 1),
    Sketcher.Constraint("Coincident", 7, 2, 4, 1),
    Sketcher.Constraint("Coincident", 8, 2, 9, 1),
    Sketcher.Constraint("Coincident", 9, 2, 10, 1),
    Sketcher.Constraint("Coincident", 10, 2, 11, 1),
    Sketcher.Constraint("Coincident", 11, 2, 8, 1),
    Sketcher.Constraint("Vertical", 0),
    Sketcher.Constraint("Horizontal", 1),
    Sketcher.Constraint("Vertical", 2),
    Sketcher.Constraint("Horizontal", 3),
    Sketcher.Constraint("Vertical", 4),
    Sketcher.Constraint("Horizontal", 5),
    Sketcher.Constraint("Vertical", 6),
    Sketcher.Constraint("Horizontal", 7),
    Sketcher.Constraint("Vertical", 8),
    Sketcher.Constraint("Horizontal", 9),
    Sketcher.Constraint("Vertical", 10),
    Sketcher.Constraint("Horizontal", 11),
    Sketcher.Constraint("PointOnObject", 0, 2, -2),
    Sketcher.Constraint("PointOnObject", 4, 2, -2),
    Sketcher.Constraint("PointOnObject", 8, 2, -2),
    Sketcher.Constraint("Vertical", 2, 2, 5, 2),
    Sketcher.Constraint("Vertical", 6, 2, 9, 2),
    Sketcher.Constraint("Equal", 2, 4),
    Sketcher.Constraint("Equal", 6, 8),
    Sketcher.Constraint("DistanceX", 1, 2, 1, 1, Q("31 mm")),
    Sketcher.Constraint("DistanceY", 0, 2, 0, 1, Q("2 mm")),
    Sketcher.Constraint("DistanceY", 4, 2, 0, 2, Q("35.1 mm")),
    Sketcher.Constraint("DistanceY", 8, 2, 4, 2, Q("35.1 mm")),
    Sketcher.Constraint("DistanceY", -1, 1, 0, 2, Q("85.81 mm")),
])
sketch10.setExpression("Constraints[31]", "Params.sketch10_width")
sketch10.setExpression("Constraints[32]", "Params.sketch10_height")
pocket2 = body.newObject("PartDesign::Pocket", "Pocket001")
pocket2.Profile = sketch10
pocket2.setExpression("Length", "Params.pocket2_length")
pocket2.Reversed = True

doc.recompute()
